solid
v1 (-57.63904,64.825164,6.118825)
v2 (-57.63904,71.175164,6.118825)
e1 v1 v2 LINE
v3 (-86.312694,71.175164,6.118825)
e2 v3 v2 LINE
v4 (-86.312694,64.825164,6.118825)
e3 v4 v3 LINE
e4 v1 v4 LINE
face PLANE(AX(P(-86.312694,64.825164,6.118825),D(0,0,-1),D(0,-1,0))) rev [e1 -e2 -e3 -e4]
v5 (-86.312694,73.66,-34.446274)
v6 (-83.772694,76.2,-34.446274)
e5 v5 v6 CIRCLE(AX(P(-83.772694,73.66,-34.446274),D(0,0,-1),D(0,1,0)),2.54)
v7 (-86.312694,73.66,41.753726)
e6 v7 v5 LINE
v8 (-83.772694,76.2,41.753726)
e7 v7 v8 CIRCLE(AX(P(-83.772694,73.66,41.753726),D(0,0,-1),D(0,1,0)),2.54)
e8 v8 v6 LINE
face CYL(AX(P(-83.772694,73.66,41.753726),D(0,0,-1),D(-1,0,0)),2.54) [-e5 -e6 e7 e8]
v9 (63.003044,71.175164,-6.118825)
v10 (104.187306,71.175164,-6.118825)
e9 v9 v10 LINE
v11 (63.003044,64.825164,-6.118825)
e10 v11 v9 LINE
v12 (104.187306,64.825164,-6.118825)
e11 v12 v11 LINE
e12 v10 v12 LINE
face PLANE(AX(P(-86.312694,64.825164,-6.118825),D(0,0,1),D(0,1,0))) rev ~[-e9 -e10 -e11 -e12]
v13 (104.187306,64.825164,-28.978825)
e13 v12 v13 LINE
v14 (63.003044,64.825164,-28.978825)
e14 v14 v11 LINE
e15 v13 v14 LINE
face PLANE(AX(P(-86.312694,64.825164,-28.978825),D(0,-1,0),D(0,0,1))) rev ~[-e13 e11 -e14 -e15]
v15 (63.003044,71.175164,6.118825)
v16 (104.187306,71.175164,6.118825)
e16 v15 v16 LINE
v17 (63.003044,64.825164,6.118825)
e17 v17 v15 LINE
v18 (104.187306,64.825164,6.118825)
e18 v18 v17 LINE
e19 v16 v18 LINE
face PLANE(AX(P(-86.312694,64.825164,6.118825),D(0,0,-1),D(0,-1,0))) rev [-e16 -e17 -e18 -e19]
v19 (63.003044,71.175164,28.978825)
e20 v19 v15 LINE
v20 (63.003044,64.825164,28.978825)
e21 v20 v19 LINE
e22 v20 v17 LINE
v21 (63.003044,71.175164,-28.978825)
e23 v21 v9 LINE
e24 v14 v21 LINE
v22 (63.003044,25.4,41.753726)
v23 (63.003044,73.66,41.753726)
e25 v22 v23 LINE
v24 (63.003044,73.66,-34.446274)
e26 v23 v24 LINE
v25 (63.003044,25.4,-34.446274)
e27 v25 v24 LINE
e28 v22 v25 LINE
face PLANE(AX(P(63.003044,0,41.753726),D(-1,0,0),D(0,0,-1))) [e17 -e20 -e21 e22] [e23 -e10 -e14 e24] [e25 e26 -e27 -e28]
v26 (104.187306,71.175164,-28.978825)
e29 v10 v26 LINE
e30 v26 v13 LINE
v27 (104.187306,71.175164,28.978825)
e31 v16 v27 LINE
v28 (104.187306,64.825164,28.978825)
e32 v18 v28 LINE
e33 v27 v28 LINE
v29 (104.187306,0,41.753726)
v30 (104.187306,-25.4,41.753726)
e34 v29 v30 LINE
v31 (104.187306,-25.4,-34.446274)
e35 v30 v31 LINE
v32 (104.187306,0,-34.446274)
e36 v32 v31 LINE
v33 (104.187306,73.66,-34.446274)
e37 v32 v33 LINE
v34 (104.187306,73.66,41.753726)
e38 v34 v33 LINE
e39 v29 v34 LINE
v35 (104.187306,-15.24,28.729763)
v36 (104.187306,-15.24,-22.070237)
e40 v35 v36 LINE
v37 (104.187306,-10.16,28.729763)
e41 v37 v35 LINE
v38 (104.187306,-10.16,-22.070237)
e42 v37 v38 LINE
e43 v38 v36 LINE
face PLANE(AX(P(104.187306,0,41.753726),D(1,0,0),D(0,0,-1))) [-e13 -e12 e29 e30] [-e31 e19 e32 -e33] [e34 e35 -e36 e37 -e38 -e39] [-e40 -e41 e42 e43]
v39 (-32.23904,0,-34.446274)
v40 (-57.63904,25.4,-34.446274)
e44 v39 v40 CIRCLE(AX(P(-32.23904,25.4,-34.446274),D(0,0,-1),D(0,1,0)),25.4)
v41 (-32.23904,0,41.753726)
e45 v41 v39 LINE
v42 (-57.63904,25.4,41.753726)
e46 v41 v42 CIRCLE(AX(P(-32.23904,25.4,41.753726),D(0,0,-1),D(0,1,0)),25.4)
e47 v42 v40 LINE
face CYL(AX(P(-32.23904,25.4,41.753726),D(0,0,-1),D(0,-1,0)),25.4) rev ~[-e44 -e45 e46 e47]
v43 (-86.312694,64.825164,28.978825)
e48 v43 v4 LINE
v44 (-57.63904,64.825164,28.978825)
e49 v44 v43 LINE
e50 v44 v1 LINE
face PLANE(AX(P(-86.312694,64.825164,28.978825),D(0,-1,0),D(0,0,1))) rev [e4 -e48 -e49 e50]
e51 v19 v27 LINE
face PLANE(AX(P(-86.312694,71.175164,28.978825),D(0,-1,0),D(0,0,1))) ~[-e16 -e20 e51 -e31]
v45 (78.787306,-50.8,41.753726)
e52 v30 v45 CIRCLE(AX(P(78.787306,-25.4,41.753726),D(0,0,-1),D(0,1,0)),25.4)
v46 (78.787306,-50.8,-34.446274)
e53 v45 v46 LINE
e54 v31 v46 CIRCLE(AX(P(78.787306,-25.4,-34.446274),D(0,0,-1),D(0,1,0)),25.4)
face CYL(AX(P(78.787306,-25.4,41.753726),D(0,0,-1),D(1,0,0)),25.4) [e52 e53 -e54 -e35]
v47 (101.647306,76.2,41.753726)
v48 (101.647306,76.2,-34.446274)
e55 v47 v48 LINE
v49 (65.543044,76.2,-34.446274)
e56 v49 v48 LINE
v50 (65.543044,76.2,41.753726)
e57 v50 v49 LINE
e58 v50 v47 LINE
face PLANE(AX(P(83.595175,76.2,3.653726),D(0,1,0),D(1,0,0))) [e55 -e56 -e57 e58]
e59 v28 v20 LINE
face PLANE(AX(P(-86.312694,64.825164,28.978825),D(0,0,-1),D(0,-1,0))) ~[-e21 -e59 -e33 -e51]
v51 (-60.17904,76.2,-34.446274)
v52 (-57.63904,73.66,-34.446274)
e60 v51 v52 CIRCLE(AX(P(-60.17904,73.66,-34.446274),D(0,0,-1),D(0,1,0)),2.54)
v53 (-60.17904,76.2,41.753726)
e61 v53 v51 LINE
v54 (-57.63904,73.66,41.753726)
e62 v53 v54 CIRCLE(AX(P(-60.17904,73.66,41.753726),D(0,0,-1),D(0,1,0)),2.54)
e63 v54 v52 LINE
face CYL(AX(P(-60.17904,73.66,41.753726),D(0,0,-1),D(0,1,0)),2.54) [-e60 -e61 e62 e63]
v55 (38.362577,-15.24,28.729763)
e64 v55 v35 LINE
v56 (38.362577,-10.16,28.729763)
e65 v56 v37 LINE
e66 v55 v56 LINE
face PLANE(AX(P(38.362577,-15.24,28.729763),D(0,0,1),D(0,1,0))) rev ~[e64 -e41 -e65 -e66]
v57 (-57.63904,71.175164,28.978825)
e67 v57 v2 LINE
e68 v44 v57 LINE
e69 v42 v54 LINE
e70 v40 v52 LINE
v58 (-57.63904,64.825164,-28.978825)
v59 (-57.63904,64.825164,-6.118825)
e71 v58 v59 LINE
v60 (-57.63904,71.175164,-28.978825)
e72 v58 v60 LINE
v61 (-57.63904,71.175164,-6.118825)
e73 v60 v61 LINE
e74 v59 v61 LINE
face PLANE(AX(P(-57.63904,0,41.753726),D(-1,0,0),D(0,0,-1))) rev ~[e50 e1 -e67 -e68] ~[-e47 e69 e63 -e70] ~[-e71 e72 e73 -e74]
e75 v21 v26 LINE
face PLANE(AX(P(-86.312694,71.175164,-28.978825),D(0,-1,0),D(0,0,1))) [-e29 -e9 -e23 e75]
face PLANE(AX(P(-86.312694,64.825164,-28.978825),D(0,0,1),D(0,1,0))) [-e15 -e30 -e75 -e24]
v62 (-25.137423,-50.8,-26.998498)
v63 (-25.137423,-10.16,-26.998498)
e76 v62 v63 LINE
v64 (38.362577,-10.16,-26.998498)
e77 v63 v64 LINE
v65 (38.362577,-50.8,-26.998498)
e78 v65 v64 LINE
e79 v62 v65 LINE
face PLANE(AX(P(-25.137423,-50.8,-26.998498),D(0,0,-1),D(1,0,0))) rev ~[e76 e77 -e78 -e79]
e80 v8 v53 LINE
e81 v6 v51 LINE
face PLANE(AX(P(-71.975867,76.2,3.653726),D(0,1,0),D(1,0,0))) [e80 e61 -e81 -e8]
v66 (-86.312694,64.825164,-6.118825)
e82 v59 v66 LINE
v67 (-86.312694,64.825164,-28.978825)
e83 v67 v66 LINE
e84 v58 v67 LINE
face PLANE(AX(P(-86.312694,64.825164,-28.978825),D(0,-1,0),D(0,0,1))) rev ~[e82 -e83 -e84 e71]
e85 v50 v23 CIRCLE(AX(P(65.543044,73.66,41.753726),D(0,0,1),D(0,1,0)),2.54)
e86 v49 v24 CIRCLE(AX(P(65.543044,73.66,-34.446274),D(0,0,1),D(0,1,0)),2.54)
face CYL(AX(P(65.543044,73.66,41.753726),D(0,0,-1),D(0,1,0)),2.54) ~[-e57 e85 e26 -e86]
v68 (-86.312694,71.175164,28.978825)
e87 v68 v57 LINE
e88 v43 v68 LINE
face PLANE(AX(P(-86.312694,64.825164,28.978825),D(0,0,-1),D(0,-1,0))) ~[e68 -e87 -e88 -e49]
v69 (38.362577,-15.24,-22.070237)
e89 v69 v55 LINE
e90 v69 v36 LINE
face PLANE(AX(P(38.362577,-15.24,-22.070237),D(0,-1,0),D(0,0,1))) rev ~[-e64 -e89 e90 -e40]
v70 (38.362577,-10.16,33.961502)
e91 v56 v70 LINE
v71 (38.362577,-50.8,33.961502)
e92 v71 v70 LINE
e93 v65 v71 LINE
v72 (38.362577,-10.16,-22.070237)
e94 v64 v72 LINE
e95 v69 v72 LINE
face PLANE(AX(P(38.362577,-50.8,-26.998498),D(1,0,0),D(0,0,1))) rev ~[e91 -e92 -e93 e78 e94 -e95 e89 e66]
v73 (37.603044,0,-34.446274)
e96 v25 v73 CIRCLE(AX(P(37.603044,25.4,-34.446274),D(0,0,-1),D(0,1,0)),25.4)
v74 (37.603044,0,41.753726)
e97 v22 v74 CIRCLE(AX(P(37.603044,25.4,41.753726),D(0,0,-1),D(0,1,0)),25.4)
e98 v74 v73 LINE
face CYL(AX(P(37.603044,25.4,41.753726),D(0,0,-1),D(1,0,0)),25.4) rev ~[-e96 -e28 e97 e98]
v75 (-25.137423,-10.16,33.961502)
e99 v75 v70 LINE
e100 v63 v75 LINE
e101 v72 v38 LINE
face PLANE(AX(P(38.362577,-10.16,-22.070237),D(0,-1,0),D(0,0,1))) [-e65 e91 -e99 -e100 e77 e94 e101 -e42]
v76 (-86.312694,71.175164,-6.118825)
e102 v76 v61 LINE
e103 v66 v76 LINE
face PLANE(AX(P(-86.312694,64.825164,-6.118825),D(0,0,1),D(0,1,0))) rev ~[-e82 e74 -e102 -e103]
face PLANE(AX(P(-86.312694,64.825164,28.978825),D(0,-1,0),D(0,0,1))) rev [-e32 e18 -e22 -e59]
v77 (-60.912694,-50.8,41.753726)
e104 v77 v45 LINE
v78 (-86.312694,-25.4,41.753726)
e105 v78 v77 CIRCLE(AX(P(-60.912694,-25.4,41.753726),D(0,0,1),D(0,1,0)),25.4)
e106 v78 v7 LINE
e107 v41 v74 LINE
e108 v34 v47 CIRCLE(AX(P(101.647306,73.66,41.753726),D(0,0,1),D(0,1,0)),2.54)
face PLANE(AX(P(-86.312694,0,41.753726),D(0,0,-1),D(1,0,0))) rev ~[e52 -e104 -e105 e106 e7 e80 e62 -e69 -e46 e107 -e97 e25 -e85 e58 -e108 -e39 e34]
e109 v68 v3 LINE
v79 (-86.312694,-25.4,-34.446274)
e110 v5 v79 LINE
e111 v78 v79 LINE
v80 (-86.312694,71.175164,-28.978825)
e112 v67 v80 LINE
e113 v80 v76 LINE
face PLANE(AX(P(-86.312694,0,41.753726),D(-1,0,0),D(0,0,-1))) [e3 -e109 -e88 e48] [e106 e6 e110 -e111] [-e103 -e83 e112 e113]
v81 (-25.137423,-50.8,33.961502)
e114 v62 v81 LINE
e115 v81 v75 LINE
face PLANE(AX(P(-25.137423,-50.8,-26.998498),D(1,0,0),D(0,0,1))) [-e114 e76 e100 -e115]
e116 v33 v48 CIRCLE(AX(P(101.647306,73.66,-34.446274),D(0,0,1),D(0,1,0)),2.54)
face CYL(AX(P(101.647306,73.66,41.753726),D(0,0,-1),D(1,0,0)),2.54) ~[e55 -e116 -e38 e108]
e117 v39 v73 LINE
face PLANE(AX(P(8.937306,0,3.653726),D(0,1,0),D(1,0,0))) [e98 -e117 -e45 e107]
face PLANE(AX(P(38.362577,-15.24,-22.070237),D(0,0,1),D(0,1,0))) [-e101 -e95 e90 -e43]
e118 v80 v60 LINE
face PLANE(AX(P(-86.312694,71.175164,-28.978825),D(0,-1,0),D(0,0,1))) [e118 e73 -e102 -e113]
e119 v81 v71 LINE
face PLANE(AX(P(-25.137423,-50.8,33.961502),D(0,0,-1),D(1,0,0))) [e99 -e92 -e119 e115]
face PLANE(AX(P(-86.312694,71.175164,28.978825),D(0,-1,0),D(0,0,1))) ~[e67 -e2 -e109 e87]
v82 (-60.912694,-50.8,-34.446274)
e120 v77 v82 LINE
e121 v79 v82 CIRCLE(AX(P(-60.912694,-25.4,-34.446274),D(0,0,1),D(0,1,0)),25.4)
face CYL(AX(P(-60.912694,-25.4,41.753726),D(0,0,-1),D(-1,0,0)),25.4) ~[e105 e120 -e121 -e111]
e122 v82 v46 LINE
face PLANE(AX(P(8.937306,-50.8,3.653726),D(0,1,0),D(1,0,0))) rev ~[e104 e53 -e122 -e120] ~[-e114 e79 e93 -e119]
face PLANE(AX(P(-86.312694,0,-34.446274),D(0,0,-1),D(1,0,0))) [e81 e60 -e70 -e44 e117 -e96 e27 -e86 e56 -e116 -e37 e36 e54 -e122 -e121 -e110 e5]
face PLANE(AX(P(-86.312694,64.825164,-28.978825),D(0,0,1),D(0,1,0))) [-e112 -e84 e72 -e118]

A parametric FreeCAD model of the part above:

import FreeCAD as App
import Part
import Sketcher
from FreeCAD import Vector
Q = App.Units.Quantity


def edges_at(feature, points):
    """Names of the edges that pass closest to the given points."""
    edges = feature.Shape.Edges
    near = lambda p: min(range(len(edges)), key=lambda i: edges[i].distToShape(Part.Vertex(*p))[0])
    return sorted({f"Edge{near(p) + 1}" for p in points})

doc = App.newDocument("Part")
body = doc.addObject("PartDesign::Body", "Body")

sketch1 = body.newObject("Sketcher::SketchObject", "Sketch")
sketch1.AttachmentSupport = (doc.getObject("XZ_Plane"), [""])
sketch1.MapMode = "FlatFace"
sketch1.addGeometry([
    Part.LineSegment(Vector(-86, -34, 0), Vector(-86, 42, 0)),
    Part.LineSegment(Vector(-86, 42, 0), Vector(104, 42, 0)),
    Part.LineSegment(Vector(104, 42, 0), Vector(104, -34, 0)),
    Part.LineSegment(Vector(104, -34, 0), Vector(-86, -34, 0)),
], False)
sketch1.addConstraint([
    Sketcher.Constraint("Coincident", 0, 2, 1, 1),
    Sketcher.Constraint("Coincident", 1, 2, 2, 1),
    Sketcher.Constraint("Coincident", 2, 2, 3, 1),
    Sketcher.Constraint("Coincident", 3, 2, 0, 1),
    Sketcher.Constraint("Vertical", 0),
    Sketcher.Constraint("Horizontal", 1),
    Sketcher.Constraint("Vertical", 2),
    Sketcher.Constraint("Horizontal", 3),
    Sketcher.Constraint("DistanceY", 0, 1, 0, 2, Q("3 in")),
    Sketcher.Constraint("DistanceX", 1, 1, 1, 2, Q("7.5 in")),
    Sketcher.Constraint("DistanceX", 0, 2, -1, 1, 86.312694),
    Sketcher.Constraint("DistanceY", -1, 1, 0, 2, 41.753726),
])
pad1 = body.newObject("PartDesign::Pad", "Pad")
pad1.Profile = sketch1
pad1.Length = Q("2 in")

sketch2 = body.newObject("Sketcher::SketchObject", "Sketch001")
sketch2.AttachmentSupport = (doc.getObject("XZ_Plane"), [""])
sketch2.MapMode = "FlatFace"
sketch2.addGeometry([
    Part.LineSegment(Vector(-86, -34, 0), Vector(-86, 42, 0)),
    Part.LineSegment(Vector(-86, 42, 0), Vector(-58, 42, 0)),
    Part.LineSegment(Vector(-58, 42, 0), Vector(-58, -34, 0)),
    Part.LineSegment(Vector(-58, -34, 0), Vector(-86, -34, 0)),
    Part.LineSegment(Vector(63, -34, 0), Vector(63, 42, 0)),
    Part.LineSegment(Vector(63, 42, 0), Vector(104, 42, 0)),
    Part.LineSegment(Vector(104, 42, 0), Vector(104, -34, 0)),
    Part.LineSegment(Vector(104, -34, 0), Vector(63, -34, 0)),
], False)
sketch2.addConstraint([
    Sketcher.Constraint("Coincident", 0, 2, 1, 1),
    Sketcher.Constraint("Coincident", 1, 2, 2, 1),
    Sketcher.Constraint("Coincident", 2, 2, 3, 1),
    Sketcher.Constraint("Coincident", 3, 2, 0, 1),
    Sketcher.Constraint("Coincident", 4, 2, 5, 1),
    Sketcher.Constraint("Coincident", 5, 2, 6, 1),
    Sketcher.Constraint("Coincident", 6, 2, 7, 1),
    Sketcher.Constraint("Coincident", 7, 2, 4, 1),
    Sketcher.Constraint("Vertical", 0),
    Sketcher.Constraint("Horizontal", 1),
    Sketcher.Constraint("Vertical", 2),
    Sketcher.Constraint("Horizontal", 3),
    Sketcher.Constraint("Vertical", 4),
    Sketcher.Constraint("Horizontal", 5),
    Sketcher.Constraint("Vertical", 6),
    Sketcher.Constraint("Horizontal", 7),
    Sketcher.Constraint("Horizontal", 1, 2, 4, 2),
    Sketcher.Constraint("Horizontal", 3, 2, 6, 2),
    Sketcher.Constraint("DistanceY", 0, 1, 0, 2, Q("3 in")),
    Sketcher.Constraint("DistanceX", 0, 2, 5, 2, Q("7.5 in")),
    Sketcher.Constraint("DistanceX", 1, 1, 1, 2, 28.673653),
    Sketcher.Constraint("DistanceX", 5, 1, 5, 2, 41.184262),
    Sketcher.Constraint("DistanceX", 1, 2, -1, 1, 57.63904),
    Sketcher.Constraint("DistanceY", -1, 1, 0, 2, 41.753726),
])
pad2 = body.newObject("PartDesign::Pad", "Pad001")
pad2.Profile = sketch2
pad2.Length = Q("3 in")
pad2.Reversed = True
doc.recompute()

fillet = body.newObject("PartDesign::Fillet", "Fillet")
fillet.Base = (pad2, edges_at(pad2, [
    (104.187, -50.8, 3.654),
    (-57.639, 0, 3.654),
    (63.003, 0, 3.654),
    (-86.313, -50.8, 3.654),
]))
fillet.Radius = Q("1 in")

sketch3 = body.newObject("Sketcher::SketchObject", "Sketch002")
sketch3.AttachmentSupport = (doc.getObject("YZ_Plane"), [""])
sketch3.MapMode = "FlatFace"
sketch3.AttachmentOffset = App.Placement(Vector(0, 0, -86.312694), App.Rotation())
sketch3.addGeometry([
    Part.LineSegment(Vector(71, -29, 0), Vector(65, -29, 0)),
    Part.LineSegment(Vector(65, -29, 0), Vector(65, -6, 0)),
    Part.LineSegment(Vector(65, -6, 0), Vector(71, -6, 0)),
    Part.LineSegment(Vector(71, -6, 0), Vector(71, -29, 0)),
], False)
sketch3.addConstraint([
    Sketcher.Constraint("Coincident", 0, 2, 1, 1),
    Sketcher.Constraint("Coincident", 1, 2, 2, 1),
    Sketcher.Constraint("Coincident", 2, 2, 3, 1),
    Sketcher.Constraint("Coincident", 3, 2, 0, 1),
    Sketcher.Constraint("Horizontal", 0),
    Sketcher.Constraint("Vertical", 1),
    Sketcher.Constraint("Horizontal", 2),
    Sketcher.Constraint("Vertical", 3),
    Sketcher.Constraint("DistanceY", 1, 1, 1, 2, Q("0.9 in")),
    Sketcher.Constraint("DistanceX", 0, 2, 0, 1, Q("0.25 in")),
    Sketcher.Constraint("DistanceX", -1, 1, 0, 2, 64.825164),
    Sketcher.Constraint("DistanceY", 0, 2, -1, 1, 28.978825),
])
pocket1 = body.newObject("PartDesign::Pocket", "Pocket")
pocket1.Profile = sketch3
pocket1.Length = 420.760378
pocket1.Midplane = True
doc.recompute()

mirrored = body.newObject("PartDesign::Mirrored", "Mirrored")
mirrored.Originals = [pocket1]
mirrored.MirrorPlane = (doc.getObject("XY_Plane"), [""])
body.Tip = mirrored
doc.recompute()

fillet2 = body.newObject("PartDesign::Fillet", "Fillet001")
fillet2.Base = (mirrored, edges_at(mirrored, [
    (-86.313, 76.2, 3.654),
    (-57.639, 76.2, 3.654),
    (104.187, 76.2, 3.654),
    (63.003, 76.2, 3.654),
]))
fillet2.Radius = Q("0.1 in")

sketch4 = body.newObject("Sketcher::SketchObject", "Sketch003")
sketch4.AttachmentSupport = (doc.getObject("XZ_Plane"), [""])
sketch4.MapMode = "FlatFace"
sketch4.AttachmentOffset = App.Placement(Vector(0, 0, 2 * 25.4), App.Rotation())
sketch4.addGeometry([
    Part.LineSegment(Vector(-25, 34, 0), Vector(-25, -27, 0)),
    Part.LineSegment(Vector(-25, -27, 0), Vector(38, -27, 0)),
    Part.LineSegment(Vector(38, -27, 0), Vector(38, 34, 0)),
    Part.LineSegment(Vector(38, 34, 0), Vector(-25, 34, 0)),
], False)
sketch4.addConstraint([
    Sketcher.Constraint("Coincident", 0, 2, 1, 1),
    Sketcher.Constraint("Coincident", 1, 2, 2, 1),
    Sketcher.Constraint("Coincident", 2, 2, 3, 1),
    Sketcher.Constraint("Coincident", 3, 2, 0, 1),
    Sketcher.Constraint("Vertical", 0),
    Sketcher.Constraint("Horizontal", 1),
    Sketcher.Constraint("Vertical", 2),
    Sketcher.Constraint("Horizontal", 3),
    Sketcher.Constraint("DistanceX", 1, 1, 1, 2, Q("2.5 in")),
    Sketcher.Constraint("DistanceY", 0, 2, 0, 1, Q("2.4 in")),
    Sketcher.Constraint("DistanceX", 0, 2, -1, 1, 25.137423),
    Sketcher.Constraint("DistanceY", 0, 2, -1, 1, 26.998498),
])
pocket2 = body.newObject("PartDesign::Pocket", "Pocket001")
pocket2.Profile = sketch4
pocket2.Length = Q("1.6 in")

sketch5 = body.newObject("Sketcher::SketchObject", "Sketch004")
sketch5.AttachmentSupport = (doc.getObject("YZ_Plane"), [""])
sketch5.MapMode = "FlatFace"
sketch5.AttachmentOffset = App.Placement(Vector(0, 0, 38.362577), App.Rotation())
sketch5.addGeometry([
    Part.LineSegment(Vector(-10, -22, 0), Vector(-15, -22, 0)),
    Part.LineSegment(Vector(-15, -22, 0), Vector(-15, 29, 0)),
    Part.LineSegment(Vector(-15, 29, 0), Vector(-10, 29, 0)),
    Part.LineSegment(Vector(-10, 29, 0), Vector(-10, -22, 0)),
], False)
sketch5.addConstraint([
    Sketcher.Constraint("Coincident", 0, 2, 1, 1),
    Sketcher.Constraint("Coincident", 1, 2, 2, 1),
    Sketcher.Constraint("Coincident", 2, 2, 3, 1),
    Sketcher.Constraint("Coincident", 3, 2, 0, 1),
    Sketcher.Constraint("Horizontal", 0),
    Sketcher.Constraint("Vertical", 1),
    Sketcher.Constraint("Horizontal", 2),
    Sketcher.Constraint("Vertical", 3),
    Sketcher.Constraint("DistanceY", 1, 1, 1, 2, Q("2 in")),
    Sketcher.Constraint("DistanceX", 0, 2, 0, 1, Q("0.2 in")),
    Sketcher.Constraint("DistanceX", 0, 2, -1, 1, Q("0.6 in")),
    Sketcher.Constraint("DistanceY", 0, 2, -1, 1, 22.070237),
])
pocket3 = body.newObject("PartDesign::Pocket", "Pocket002")
pocket3.Profile = sketch5
pocket3.Length = Q("3 in")
pocket3.Reversed = True

doc.recompute()
